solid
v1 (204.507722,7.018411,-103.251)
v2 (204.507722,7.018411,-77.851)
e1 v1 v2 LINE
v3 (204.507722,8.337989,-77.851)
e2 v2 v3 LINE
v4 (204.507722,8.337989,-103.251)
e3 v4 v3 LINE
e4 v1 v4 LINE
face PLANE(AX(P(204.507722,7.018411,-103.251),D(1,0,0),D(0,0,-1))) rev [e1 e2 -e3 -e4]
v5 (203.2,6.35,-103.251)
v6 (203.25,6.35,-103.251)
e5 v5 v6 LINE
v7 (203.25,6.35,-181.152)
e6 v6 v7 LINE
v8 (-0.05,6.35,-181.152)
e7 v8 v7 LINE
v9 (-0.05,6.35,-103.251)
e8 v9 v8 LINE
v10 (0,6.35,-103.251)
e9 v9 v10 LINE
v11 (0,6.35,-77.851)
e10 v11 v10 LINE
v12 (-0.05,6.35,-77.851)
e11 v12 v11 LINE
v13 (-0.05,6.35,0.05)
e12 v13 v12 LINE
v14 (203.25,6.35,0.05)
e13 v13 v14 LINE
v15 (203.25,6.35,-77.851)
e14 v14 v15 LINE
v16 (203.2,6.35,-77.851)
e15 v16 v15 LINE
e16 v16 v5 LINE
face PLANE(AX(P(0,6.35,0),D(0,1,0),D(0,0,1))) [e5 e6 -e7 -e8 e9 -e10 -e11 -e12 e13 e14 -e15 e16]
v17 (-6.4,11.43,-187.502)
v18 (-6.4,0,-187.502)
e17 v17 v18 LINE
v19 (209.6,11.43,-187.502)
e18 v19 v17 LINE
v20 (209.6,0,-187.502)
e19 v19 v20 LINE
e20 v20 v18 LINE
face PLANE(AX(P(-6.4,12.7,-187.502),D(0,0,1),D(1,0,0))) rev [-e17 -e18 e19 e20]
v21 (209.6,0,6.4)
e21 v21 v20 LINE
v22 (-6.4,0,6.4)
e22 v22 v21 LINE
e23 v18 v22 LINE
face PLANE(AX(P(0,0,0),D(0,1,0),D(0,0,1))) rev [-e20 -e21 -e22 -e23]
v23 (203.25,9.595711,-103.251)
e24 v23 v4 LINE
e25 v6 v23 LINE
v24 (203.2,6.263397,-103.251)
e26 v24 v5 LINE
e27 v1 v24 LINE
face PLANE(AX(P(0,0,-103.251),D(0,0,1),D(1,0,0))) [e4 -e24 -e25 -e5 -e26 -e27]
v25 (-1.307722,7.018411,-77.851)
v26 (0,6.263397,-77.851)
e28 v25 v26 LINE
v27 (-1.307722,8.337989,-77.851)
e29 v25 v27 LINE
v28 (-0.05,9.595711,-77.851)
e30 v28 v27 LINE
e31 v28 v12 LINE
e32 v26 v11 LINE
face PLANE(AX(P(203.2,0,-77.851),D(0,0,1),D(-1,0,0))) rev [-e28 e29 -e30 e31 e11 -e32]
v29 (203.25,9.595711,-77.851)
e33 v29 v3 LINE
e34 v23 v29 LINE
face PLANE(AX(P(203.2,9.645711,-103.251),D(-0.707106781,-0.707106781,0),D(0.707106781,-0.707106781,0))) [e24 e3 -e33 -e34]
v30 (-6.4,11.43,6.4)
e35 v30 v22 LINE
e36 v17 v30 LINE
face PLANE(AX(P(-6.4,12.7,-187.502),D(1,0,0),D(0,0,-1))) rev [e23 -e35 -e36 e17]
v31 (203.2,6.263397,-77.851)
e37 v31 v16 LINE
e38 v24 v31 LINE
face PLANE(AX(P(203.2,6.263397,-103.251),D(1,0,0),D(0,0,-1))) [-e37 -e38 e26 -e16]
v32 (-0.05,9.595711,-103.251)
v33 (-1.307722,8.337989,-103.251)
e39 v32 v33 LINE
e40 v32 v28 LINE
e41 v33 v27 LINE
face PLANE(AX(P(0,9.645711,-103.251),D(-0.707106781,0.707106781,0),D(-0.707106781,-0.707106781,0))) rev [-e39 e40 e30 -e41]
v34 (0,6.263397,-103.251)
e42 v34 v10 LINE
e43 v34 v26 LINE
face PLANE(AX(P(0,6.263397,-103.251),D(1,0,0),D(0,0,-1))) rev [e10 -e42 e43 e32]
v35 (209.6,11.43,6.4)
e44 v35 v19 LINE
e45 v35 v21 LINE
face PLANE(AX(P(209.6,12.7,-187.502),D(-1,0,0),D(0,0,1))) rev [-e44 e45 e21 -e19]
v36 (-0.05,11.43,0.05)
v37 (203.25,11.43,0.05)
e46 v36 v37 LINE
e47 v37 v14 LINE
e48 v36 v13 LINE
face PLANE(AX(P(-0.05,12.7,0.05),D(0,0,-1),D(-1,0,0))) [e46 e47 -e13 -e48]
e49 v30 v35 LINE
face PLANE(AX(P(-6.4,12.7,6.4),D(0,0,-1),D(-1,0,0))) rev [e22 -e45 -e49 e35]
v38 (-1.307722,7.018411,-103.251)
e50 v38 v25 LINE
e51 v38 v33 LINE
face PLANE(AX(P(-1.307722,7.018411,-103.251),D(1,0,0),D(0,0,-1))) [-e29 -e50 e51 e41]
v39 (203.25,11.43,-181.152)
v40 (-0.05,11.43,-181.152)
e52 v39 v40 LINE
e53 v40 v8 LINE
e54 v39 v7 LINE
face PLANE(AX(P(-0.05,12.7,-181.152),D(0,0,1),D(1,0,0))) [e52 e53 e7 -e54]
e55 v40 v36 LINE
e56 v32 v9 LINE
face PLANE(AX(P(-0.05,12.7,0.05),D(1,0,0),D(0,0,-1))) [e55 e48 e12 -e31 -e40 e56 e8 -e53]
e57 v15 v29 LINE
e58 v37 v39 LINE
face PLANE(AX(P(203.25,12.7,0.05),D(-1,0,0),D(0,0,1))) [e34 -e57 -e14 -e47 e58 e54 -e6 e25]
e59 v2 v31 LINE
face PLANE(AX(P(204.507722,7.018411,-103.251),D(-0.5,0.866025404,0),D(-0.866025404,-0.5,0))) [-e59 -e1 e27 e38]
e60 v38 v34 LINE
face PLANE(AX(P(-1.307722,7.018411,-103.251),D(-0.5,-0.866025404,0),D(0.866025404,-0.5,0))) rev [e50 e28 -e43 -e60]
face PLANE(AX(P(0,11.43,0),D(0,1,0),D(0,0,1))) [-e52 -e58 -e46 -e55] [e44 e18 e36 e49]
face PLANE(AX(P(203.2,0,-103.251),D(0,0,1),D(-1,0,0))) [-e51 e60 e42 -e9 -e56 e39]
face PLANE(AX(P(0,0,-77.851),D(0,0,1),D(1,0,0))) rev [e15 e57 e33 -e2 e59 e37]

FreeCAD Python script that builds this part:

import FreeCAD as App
import Part
import Sketcher
from FreeCAD import Vector
Q = App.Units.Quantity

doc = App.newDocument("Part")
body = doc.addObject("PartDesign::Body", "Body")

# Sketch on XZ plane
sketch1 = body.newObject("Sketcher::SketchObject", "Sketch")
sketch1.AttachmentSupport = (doc.getObject("XZ_Plane"), [""])
sketch1.MapMode = "FlatFace"
sketch1.addGeometry([
    Part.LineSegment(Vector(-6, -188, 0), Vector(-6, 6, 0)),  # 0
    Part.LineSegment(Vector(-6, 6, 0), Vector(210, 6, 0)),  # 1
    Part.LineSegment(Vector(210, 6, 0), Vector(210, -188, 0)),  # 2
    Part.LineSegment(Vector(210, -188, 0), Vector(-6, -188, 0)),  # 3
    Part.LineSegment(Vector(203, 0, 0), Vector(0, 0, 0)),  # 4
    Part.LineSegment(Vector(0, 0, 0), Vector(0, -181, 0)),  # 5
    Part.LineSegment(Vector(0, -181, 0), Vector(203, -181, 0)),  # 6
    Part.LineSegment(Vector(203, -181, 0), Vector(203, 0, 0)),  # 7
], False)
sketch1.addConstraint([
    Sketcher.Constraint("Coincident", 0, 2, 1, 1),
    Sketcher.Constraint("Coincident", 1, 2, 2, 1),
    Sketcher.Constraint("Coincident", 2, 2, 3, 1),
    Sketcher.Constraint("Coincident", 3, 2, 0, 1),
    Sketcher.Constraint("Coincident", 4, 2, 5, 1),
    Sketcher.Constraint("Coincident", 5, 2, 6, 1),
    Sketcher.Constraint("Coincident", 6, 2, 7, 1),
    Sketcher.Constraint("Coincident", 7, 2, 4, 1),
    Sketcher.Constraint("Vertical", 0),
    Sketcher.Constraint("Horizontal", 1),
    Sketcher.Constraint("Vertical", 2),
    Sketcher.Constraint("Horizontal", 3),
    Sketcher.Constraint("Horizontal", 4),
    Sketcher.Constraint("Vertical", 5),
    Sketcher.Constraint("Horizontal", 6),
    Sketcher.Constraint("Vertical", 7),
    Sketcher.Constraint("DistanceX", 0, 2, 4, 2, Q("0.25 in")),
    Sketcher.Constraint("DistanceY", 4, 2, 0, 2, Q("0.25 in")),
    Sketcher.Constraint("DistanceY", 3, 2, 5, 2, Q("0.25 in")),
    Sketcher.Constraint("DistanceX", 6, 2, 2, 2, Q("0.25 in")),
    Sketcher.Constraint("DistanceX", 1, 1, 1, 2, 216.0),
    Sketcher.Constraint("DistanceY", 0, 1, 0, 2, 193.902),
    Sketcher.Constraint("DistanceX", 0, 2, -1, 1, 6.4),
    Sketcher.Constraint("DistanceY", -1, 1, 0, 2, 6.4),
])
pad1 = body.newObject("PartDesign::Pad", "Pad")
pad1.Profile = sketch1
pad1.Length = Q("0.5 in")
pad1.Reversed = True

# Sketch on XZ plane
sketch2 = body.newObject("Sketcher::SketchObject", "Sketch001")
sketch2.AttachmentSupport = (doc.getObject("XZ_Plane"), [""])
sketch2.MapMode = "FlatFace"
sketch2.addGeometry([
    Part.LineSegment(Vector(0, -181, 0), Vector(0, 0, 0)),
    Part.LineSegment(Vector(0, 0, 0), Vector(203, 0, 0)),
    Part.LineSegment(Vector(203, 0, 0), Vector(203, -181, 0)),
    Part.LineSegment(Vector(203, -181, 0), Vector(0, -181, 0)),
], False)
sketch2.addConstraint([
    Sketcher.Constraint("Coincident", 0, 2, 1, 1),
    Sketcher.Constraint("Coincident", 1, 2, 2, 1),
    Sketcher.Constraint("Coincident", 2, 2, 3, 1),
    Sketcher.Constraint("Coincident", 3, 2, 0, 1),
    Sketcher.Constraint("Vertical", 0),
    Sketcher.Constraint("Horizontal", 1),
    Sketcher.Constraint("Vertical", 2),
    Sketcher.Constraint("Horizontal", 3),
    Sketcher.Constraint("DistanceX", 1, 1, 1, 2, 203.3),
    Sketcher.Constraint("DistanceY", 0, 1, 0, 2, 181.202),
    Sketcher.Constraint("DistanceX", 0, 2, -1, 1, 0.05),
    Sketcher.Constraint("DistanceY", -1, 1, 0, 2, 0.05),
])
pad2 = body.newObject("PartDesign::Pad", "Pad001")
pad2.Profile = sketch2
pad2.Length = Q("0.25 in")
pad2.Reversed = True

# Sketch on XY plane
sketch3 = body.newObject("Sketcher::SketchObject", "Sketch002")
sketch3.AttachmentSupport = (doc.getObject("XY_Plane"), [""])
sketch3.MapMode = "FlatFace"
sketch3.AttachmentOffset = App.Placement(Vector(0, 0, -3.565 * 25.4), App.Rotation())
sketch3.addGeometry([
    Part.LineSegment(Vector(203.2, 9.6, 0), Vector(204.5, 8.3, 0)),
    Part.LineSegment(Vector(204.5, 8.3, 0), Vector(204.5, 7, 0)),
    Part.LineSegment(Vector(204.5, 7, 0), Vector(203.2, 6.3, 0)),
    Part.LineSegment(Vector(203.2, 6.3, 0), Vector(203.2, 9.6, 0)),
], False)
sketch3.addConstraint([
    Sketcher.Constraint("Coincident", 0, 2, 1, 1),
    Sketcher.Constraint("Coincident", 1, 2, 2, 1),
    Sketcher.Constraint("Coincident", 2, 2, 3, 1),
    Sketcher.Constraint("Coincident", 3, 2, 0, 1),
    Sketcher.Constraint("Vertical", 1),
    Sketcher.Constraint("Vertical", 3),
    Sketcher.Constraint("DistanceX", -1, 1, 2, 2, Q("8 in")),
    Sketcher.Constraint("Angle", 0, Q("-45 deg")),
    Sketcher.Constraint("Angle", 2, Q("-150 deg")),
    Sketcher.Constraint("DistanceY", 1, 2, 1, 1, 1.319578),
    Sketcher.Constraint("DistanceY", 1, 2, 3, 2, 2.6273),
    Sketcher.Constraint("DistanceY", -1, 1, 0, 2, 8.337989),
])
pocket1 = body.newObject("PartDesign::Pocket", "Pocket")
pocket1.Profile = sketch3
pocket1.Length = Q("1 in")
pocket1.Midplane = True

# Sketch on XZ plane
sketch4 = body.newObject("Sketcher::SketchObject", "Sketch003")
sketch4.AttachmentSupport = (doc.getObject("XZ_Plane"), [""])
sketch4.MapMode = "FlatFace"
sketch4.AttachmentOffset = App.Placement(Vector(0, 0, -0.5 * 25.4), App.Rotation())
sketch4.addGeometry([
    Part.LineSegment(Vector(-6.4, -187.5, 0), Vector(-6.4, 6.4, 0)),  # 0
    Part.LineSegment(Vector(-6.4, 6.4, 0), Vector(209.6, 6.4, 0)),  # 1
    Part.LineSegment(Vector(209.6, 6.4, 0), Vector(209.6, -187.5, 0)),  # 2
    Part.LineSegment(Vector(209.6, -187.5, 0), Vector(-6.4, -187.5, 0)),  # 3
    Part.LineSegment(Vector(203.2, -103.25, 0), Vector(203.2, -77.85, 0)),  # 4
    Part.LineSegment(Vector(203.2, -77.85, 0), Vector(203.25, -77.85, 0)),  # 5
    Part.LineSegment(Vector(203.25, -77.85, 0), Vector(203.25, 0.05, 0)),  # 6
    Part.LineSegment(Vector(203.25, 0.05, 0), Vector(-0.05, 0.05, 0)),  # 7
    Part.LineSegment(Vector(-0.05, 0.05, 0), Vector(-0.05, -181.15, 0)),  # 8
    Part.LineSegment(Vector(-0.05, -181.15, 0), Vector(203.25, -181.15, 0)),  # 9
    Part.LineSegment(Vector(203.25, -181.15, 0), Vector(203.25, -103.25, 0)),  # 10
    Part.LineSegment(Vector(203.25, -103.25, 0), Vector(203.2, -103.25, 0)),  # 11
], False)
sketch4.addConstraint([
    Sketcher.Constraint("Coincident", 0, 2, 1, 1),
    Sketcher.Constraint("Coincident", 1, 2, 2, 1),
    Sketcher.Constraint("Coincident", 2, 2, 3, 1),
    Sketcher.Constraint("Coincident", 3, 2, 0, 1),
    Sketcher.Constraint("Coincident", 4, 2, 5, 1),
    Sketcher.Constraint("Coincident", 5, 2, 6, 1),
    Sketcher.Constraint("Coincident", 6, 2, 7, 1),
    Sketcher.Constraint("Coincident", 7, 2, 8, 1),
    Sketcher.Constraint("Coincident", 8, 2, 9, 1),
    Sketcher.Constraint("Coincident", 9, 2, 10, 1),
    Sketcher.Constraint("Coincident", 10, 2, 11, 1),
    Sketcher.Constraint("Coincident", 11, 2, 4, 1),
    Sketcher.Constraint("Vertical", 0),
    Sketcher.Constraint("Horizontal", 1),
    Sketcher.Constraint("Vertical", 2),
    Sketcher.Constraint("Horizontal", 3),
    Sketcher.Constraint("Vertical", 4),
    Sketcher.Constraint("Horizontal", 5),
    Sketcher.Constraint("Vertical", 6),
    Sketcher.Constraint("Horizontal", 7),
    Sketcher.Constraint("Vertical", 8),
    Sketcher.Constraint("Horizontal", 9),
    Sketcher.Constraint("Vertical", 10),
    Sketcher.Constraint("Horizontal", 11),
    Sketcher.Constraint("Vertical", 6, 2, 9, 2),
    Sketcher.Constraint("Equal", 6, 10),
    Sketcher.Constraint("DistanceY", 4, 1, 4, 2, Q("1 in")),
    Sketcher.Constraint("DistanceX", -1, 1, 4, 2, Q("8 in")),
    Sketcher.Constraint("DistanceX", 5, 2, 1, 2, Q("0.25 in")),
    Sketcher.Constraint("DistanceY", 6, 2, 1, 2, Q("0.25 in")),
    Sketcher.Constraint("DistanceX", 0, 2, 7, 2, Q("0.25 in")),
    Sketcher.Constraint("DistanceY", 3, 2, 8, 2, Q("0.25 in")),
    Sketcher.Constraint("DistanceY", 4, 2, -1, 1, Q("3.065 in")),
    Sketcher.Constraint("DistanceX", 1, 1, 1, 2, 216.0),
    Sketcher.Constraint("DistanceX", 5, 1, 5, 2, 0.05),
    Sketcher.Constraint("DistanceY", 0, 1, 0, 2, 193.902),
])
pocket2 = body.newObject("PartDesign::Pocket", "Pocket001")
pocket2.Profile = sketch4
pocket2.Length = Q("0.05 in")
pocket2.Reversed = True
doc.recompute()

datumplane = body.newObject("PartDesign::Plane", "DatumPlane")
datumplane.AttachmentSupport = (doc.getObject("YZ_Plane"), [""])
datumplane.MapMode = "FlatFace"
datumplane.AttachmentOffset = App.Placement(Vector(0, 0, 4 * 25.4), App.Rotation())
mirrored = body.newObject("PartDesign::Mirrored", "Mirrored")
mirrored.Originals = [pocket1]
mirrored.MirrorPlane = (datumplane, [""])
body.Tip = mirrored

doc.recompute()
